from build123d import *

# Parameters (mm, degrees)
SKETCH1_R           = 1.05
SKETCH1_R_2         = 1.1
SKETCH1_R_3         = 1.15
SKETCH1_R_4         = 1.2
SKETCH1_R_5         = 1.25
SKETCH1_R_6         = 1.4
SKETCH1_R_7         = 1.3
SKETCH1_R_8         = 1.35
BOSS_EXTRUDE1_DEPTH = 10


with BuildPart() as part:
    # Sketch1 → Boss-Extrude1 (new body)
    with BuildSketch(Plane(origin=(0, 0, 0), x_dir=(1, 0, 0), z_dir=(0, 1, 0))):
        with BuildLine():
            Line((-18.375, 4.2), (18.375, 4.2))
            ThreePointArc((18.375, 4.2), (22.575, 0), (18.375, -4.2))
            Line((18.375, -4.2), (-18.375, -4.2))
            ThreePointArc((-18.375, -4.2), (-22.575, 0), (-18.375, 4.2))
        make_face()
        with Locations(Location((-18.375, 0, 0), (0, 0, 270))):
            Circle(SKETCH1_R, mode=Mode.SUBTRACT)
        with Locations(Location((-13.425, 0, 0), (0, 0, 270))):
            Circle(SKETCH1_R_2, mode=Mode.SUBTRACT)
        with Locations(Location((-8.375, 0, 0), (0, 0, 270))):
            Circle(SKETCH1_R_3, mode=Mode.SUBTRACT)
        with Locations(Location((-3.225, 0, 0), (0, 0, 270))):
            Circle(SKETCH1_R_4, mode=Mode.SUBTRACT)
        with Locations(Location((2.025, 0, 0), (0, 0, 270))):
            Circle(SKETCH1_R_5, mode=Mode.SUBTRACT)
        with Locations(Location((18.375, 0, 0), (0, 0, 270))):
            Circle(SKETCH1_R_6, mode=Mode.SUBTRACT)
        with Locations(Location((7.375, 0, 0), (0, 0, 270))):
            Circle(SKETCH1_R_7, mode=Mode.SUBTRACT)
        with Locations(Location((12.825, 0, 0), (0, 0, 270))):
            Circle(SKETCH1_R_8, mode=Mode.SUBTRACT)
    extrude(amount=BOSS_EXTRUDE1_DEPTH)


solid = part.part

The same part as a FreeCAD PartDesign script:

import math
import FreeCAD as App
import Part
import Sketcher

doc = App.newDocument("Part")
params = doc.addObject("Spreadsheet::Sheet", "Params")
for row, (alias, value) in enumerate([
    ("sketch1_diameter", "2.8 mm"),
    ("sketch1_diameter2", "2.7 mm"),
    ("sketch1_diameter3", "2.6 mm"),
    ("sketch1_diameter4", "2.5 mm"),
    ("sketch1_diameter5", "2.4 mm"),
    ("pad1_length", "10 mm"),
], start=1):
    params.set(f"A{row}", alias)
    params.set(f"B{row}", "=" + value)
    params.setAlias(f"B{row}", alias)

body = doc.addObject("PartDesign::Body", "Body")

sketch1 = doc.addObject("Sketcher::SketchObject", "Sketch")
body.addObject(sketch1)
sketch1.AttachmentSupport = (doc.XZ_Plane, [""])
sketch1.MapMode = "FlatFace"
sketch1.addGeometry([
    Part.LineSegment(App.Vector(18.4, -4.2, 0), App.Vector(-18.4, -4.2, 0)),
    Part.ArcOfCircle(Part.Circle(App.Vector(-18.4, 0, 0), App.Vector(0, 0, 1), 4.2), math.radians(90), math.radians(270)),
    Part.LineSegment(App.Vector(-18.4, 4.2, 0), App.Vector(18.4, 4.2, 0)),
    Part.ArcOfCircle(Part.Circle(App.Vector(18.4, 0, 0), App.Vector(0, 0, 1), 4.2), math.radians(-90), math.radians(90)),
    Part.Circle(App.Vector(18.4, 0, 0), App.Vector(0, 0, 1), 1.4),
    Part.Circle(App.Vector(12.8, 0, 0), App.Vector(0, 0, 1), 1.4),
    Part.Circle(App.Vector(7.4, 0, 0), App.Vector(0, 0, 1), 1.3),
    Part.Circle(App.Vector(2, 0, 0), App.Vector(0, 0, 1), 1.2),
    Part.Circle(App.Vector(-3.2, 0, 0), App.Vector(0, 0, 1), 1.2),
    Part.Circle(App.Vector(-8.4, 0, 0), App.Vector(0, 0, 1), 1.1),
    Part.Circle(App.Vector(-13.4, 0, 0), App.Vector(0, 0, 1), 1.1),
    Part.Circle(App.Vector(-18.4, 0, 0), App.Vector(0, 0, 1), 1.1),
], False)
sketch1.addConstraint([
    Sketcher.Constraint("Tangent", 0, 2, 1, 2),
    Sketcher.Constraint("Tangent", 1, 1, 2, 1),
    Sketcher.Constraint("Tangent", 2, 2, 3, 2),
    Sketcher.Constraint("Tangent", 3, 1, 0, 1),
    Sketcher.Constraint("Horizontal", 0),
    Sketcher.Constraint("Horizontal", 2),
    Sketcher.Constraint("Coincident", 4, 3, 3, 3),
    Sketcher.Constraint("Coincident", 11, 3, 1, 3),
    Sketcher.Constraint("Symmetric", 1, 3, 3, 3, -1, 1),
    Sketcher.Constraint("PointOnObject", 5, 3, -1),
    Sketcher.Constraint("PointOnObject", 6, 3, -1),
    Sketcher.Constraint("PointOnObject", 7, 3, -1),
    Sketcher.Constraint("PointOnObject", 8, 3, -1),
    Sketcher.Constraint("PointOnObject", 9, 3, -1),
    Sketcher.Constraint("PointOnObject", 10, 3, -1),
    Sketcher.Constraint("Diameter", 4, 2.8),
    Sketcher.Constraint("Diameter", 5, 2.7),
    Sketcher.Constraint("Diameter", 6, 2.6),
    Sketcher.Constraint("Diameter", 7, 2.5),
    Sketcher.Constraint("Diameter", 8, 2.4),
    Sketcher.Constraint("Diameter", 9, 2.3),
    Sketcher.Constraint("Diameter", 10, 2.2),
    Sketcher.Constraint("Diameter", 11, 2.1),
    Sketcher.Constraint("Radius", 1, 4.2),
    Sketcher.Constraint("DistanceX", 6, 3, 3, 3, 11.0),
    Sketcher.Constraint("DistanceX", 1, 3, 9, 3, 10.0),
    Sketcher.Constraint("DistanceX", 0, 2, 0, 1, 36.75),
    Sketcher.Constraint("DistanceX", 1, 3, 5, 3, 31.2),
    Sketcher.Constraint("DistanceX", 7, 3, 5, 3, 10.8),
    Sketcher.Constraint("DistanceX", 8, 3, 6, 3, 10.6),
    Sketcher.Constraint("DistanceX", 10, 3, 8, 3, 10.2),
])
sketch1.setExpression("Constraints[15]", "Params.sketch1_diameter")
sketch1.setExpression("Constraints[16]", "Params.sketch1_diameter2")
sketch1.setExpression("Constraints[17]", "Params.sketch1_diameter3")
sketch1.setExpression("Constraints[18]", "Params.sketch1_diameter4")
sketch1.setExpression("Constraints[19]", "Params.sketch1_diameter5")
pad1 = doc.addObject("PartDesign::Pad", "Pad")
body.addObject(pad1)
pad1.Profile = sketch1
pad1.setExpression("Length", "Params.pad1_length")
pad1.Reversed = True

doc.recompute()
